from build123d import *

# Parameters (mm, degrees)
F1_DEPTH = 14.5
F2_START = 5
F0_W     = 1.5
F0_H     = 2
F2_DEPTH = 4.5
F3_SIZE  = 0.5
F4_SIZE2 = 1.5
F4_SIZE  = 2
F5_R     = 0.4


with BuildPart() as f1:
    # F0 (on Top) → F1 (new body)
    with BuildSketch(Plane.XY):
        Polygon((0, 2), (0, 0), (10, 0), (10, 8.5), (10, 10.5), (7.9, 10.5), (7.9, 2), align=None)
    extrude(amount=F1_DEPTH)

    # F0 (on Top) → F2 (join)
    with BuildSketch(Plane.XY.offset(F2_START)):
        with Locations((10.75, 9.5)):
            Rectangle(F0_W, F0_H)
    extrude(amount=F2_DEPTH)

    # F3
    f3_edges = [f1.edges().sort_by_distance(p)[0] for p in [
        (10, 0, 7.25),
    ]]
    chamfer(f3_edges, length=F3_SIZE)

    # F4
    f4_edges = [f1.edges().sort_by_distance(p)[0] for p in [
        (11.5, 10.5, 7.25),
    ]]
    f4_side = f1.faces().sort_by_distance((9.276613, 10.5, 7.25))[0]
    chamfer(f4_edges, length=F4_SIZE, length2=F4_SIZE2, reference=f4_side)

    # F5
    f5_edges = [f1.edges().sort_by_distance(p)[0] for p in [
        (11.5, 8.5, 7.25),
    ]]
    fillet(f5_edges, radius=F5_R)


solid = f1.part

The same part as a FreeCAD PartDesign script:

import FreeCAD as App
import Part
import Sketcher
from FreeCAD import Vector
Q = App.Units.Quantity


def edges_at(feature, points):
    """Names of the edges that pass closest to the given points."""
    edges = feature.Shape.Edges
    near = lambda p: min(range(len(edges)), key=lambda i: edges[i].distToShape(Part.Vertex(*p))[0])
    return sorted({f"Edge{near(p) + 1}" for p in points})


def add_polygon(sketch, points):
    """Adds a closed chain of lines whose ends are joined by coincident constraints."""
    first, n = sketch.GeometryCount, len(points)
    for a, b in zip(points, points[1:] + points[:1]):
        sketch.addGeometry(Part.LineSegment(App.Vector(*a, 0), App.Vector(*b, 0)), False)
    for i in range(n):
        sketch.addConstraint(Sketcher.Constraint("Coincident", first + i, 2, first + (i + 1) % n, 1))

doc = App.newDocument("Part")
params = doc.addObject("Spreadsheet::Sheet", "Params")
for row, (alias, value) in enumerate([
    ("sketch1_width", "10 mm"),
    ("sketch1_height", "2 mm"),
    ("sketch1_width2", "2.1 mm"),
    ("sketch1_height2", "10.5 mm"),
    ("pad1_length", "14.5 mm"),
    ("sketch2_height", "2 mm"),
    ("sketch2_width", "1.5 mm"),
    ("pad2_length", "4.5 mm"),
    ("chamfer_size", "0.5 mm"),
    ("chamfer2_size", "2 mm"),
    ("chamfer2_size2", "1.5 mm"),
    ("fillet_radius", "0.4 mm"),
], start=1):
    params.set(f"A{row}", alias)
    params.set(f"B{row}", "=" + value)
    params.setAlias(f"B{row}", alias)

body = doc.addObject("PartDesign::Body", "Body")

sketch1 = body.newObject("Sketcher::SketchObject", "Sketch")
sketch1.AttachmentSupport = (doc.getObject("XY_Plane"), [""])
sketch1.MapMode = "FlatFace"
add_polygon(sketch1, [(0, 2), (0, 0), (10, 0), (10, 10.5), (7.9, 10.5), (7.9, 2)])
sketch1.addConstraint([
    Sketcher.Constraint("Vertical", 0),
    Sketcher.Constraint("Horizontal", 1),
    Sketcher.Constraint("Vertical", 2),
    Sketcher.Constraint("Horizontal", 3),
    Sketcher.Constraint("Vertical", 4),
    Sketcher.Constraint("Horizontal", 5),
    Sketcher.Constraint("Coincident", 0, 2, -1, 1),
    Sketcher.Constraint("DistanceX", 1, 1, 1, 2, Q("10 mm")),
    Sketcher.Constraint("DistanceY", 0, 2, 0, 1, Q("2 mm")),
    Sketcher.Constraint("DistanceX", 3, 2, 3, 1, Q("2.1 mm")),
    Sketcher.Constraint("DistanceY", 2, 1, 2, 2, Q("10.5 mm")),
])
sketch1.setExpression("Constraints[13]", "Params.sketch1_width")
sketch1.setExpression("Constraints[14]", "Params.sketch1_height")
sketch1.setExpression("Constraints[15]", "Params.sketch1_width2")
sketch1.setExpression("Constraints[16]", "Params.sketch1_height2")
pad1 = body.newObject("PartDesign::Pad", "Pad")
pad1.Profile = sketch1
pad1.setExpression("Length", "Params.pad1_length")

sketch2 = body.newObject("Sketcher::SketchObject", "Sketch001")
sketch2.AttachmentSupport = (doc.getObject("XY_Plane"), [""])
sketch2.MapMode = "FlatFace"
sketch2.AttachmentOffset = App.Placement(Vector(0, 0, 5), App.Rotation())
add_polygon(sketch2, [(10, 10.5), (10, 8.5), (11.5, 8.5), (11.5, 10.5)])
sketch2.addConstraint([
    Sketcher.Constraint("Vertical", 0),
    Sketcher.Constraint("Horizontal", 1),
    Sketcher.Constraint("Vertical", 2),
    Sketcher.Constraint("Horizontal", 3),
    Sketcher.Constraint("DistanceY", 0, 2, 0, 1, Q("2 mm")),
    Sketcher.Constraint("DistanceX", 1, 1, 1, 2, Q("1.5 mm")),
    Sketcher.Constraint("DistanceX", -1, 1, 0, 2, Q("10 mm")),
    Sketcher.Constraint("DistanceY", -1, 1, 0, 2, Q("8.5 mm")),
])
sketch2.setExpression("Constraints[8]", "Params.sketch2_height")
sketch2.setExpression("Constraints[9]", "Params.sketch2_width")
pad2 = body.newObject("PartDesign::Pad", "Pad001")
pad2.Profile = sketch2
pad2.setExpression("Length", "Params.pad2_length")
doc.recompute()

chamfer = body.newObject("PartDesign::Chamfer", "Chamfer")
chamfer.Base = (pad2, edges_at(pad2, [(10, 0, 7.25)]))
chamfer.setExpression("Size", "Params.chamfer_size")
doc.recompute()

chamfer2 = body.newObject("PartDesign::Chamfer", "Chamfer001")
chamfer2.Base = (chamfer, edges_at(chamfer, [(11.5, 10.5, 7.25)]))
chamfer2.ChamferType = "Two distances"
chamfer2.setExpression("Size", "Params.chamfer2_size")
chamfer2.setExpression("Size2", "Params.chamfer2_size2")
doc.recompute()

fillet = body.newObject("PartDesign::Fillet", "Fillet")
fillet.Base = (chamfer2, edges_at(chamfer2, [(11.5, 8.5, 7.25)]))
fillet.setExpression("Radius", "Params.fillet_radius")

doc.recompute()
